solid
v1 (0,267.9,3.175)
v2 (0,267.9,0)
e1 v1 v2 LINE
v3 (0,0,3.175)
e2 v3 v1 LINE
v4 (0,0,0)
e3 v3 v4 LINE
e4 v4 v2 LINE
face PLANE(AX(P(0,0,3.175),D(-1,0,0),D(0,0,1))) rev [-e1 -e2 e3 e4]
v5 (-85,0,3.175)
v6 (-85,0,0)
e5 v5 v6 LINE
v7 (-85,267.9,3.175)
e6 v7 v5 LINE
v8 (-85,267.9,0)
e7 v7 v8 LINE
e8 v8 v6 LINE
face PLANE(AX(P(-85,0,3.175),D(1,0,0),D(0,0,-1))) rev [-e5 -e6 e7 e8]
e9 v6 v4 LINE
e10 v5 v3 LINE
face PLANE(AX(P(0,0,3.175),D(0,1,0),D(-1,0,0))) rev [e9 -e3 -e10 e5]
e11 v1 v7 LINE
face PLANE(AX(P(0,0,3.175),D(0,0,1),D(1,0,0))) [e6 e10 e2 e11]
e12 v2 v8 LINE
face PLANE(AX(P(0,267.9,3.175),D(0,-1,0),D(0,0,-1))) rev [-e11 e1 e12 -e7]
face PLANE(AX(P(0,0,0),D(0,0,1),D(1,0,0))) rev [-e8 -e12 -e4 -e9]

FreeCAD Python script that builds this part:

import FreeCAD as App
import Part
import Sketcher
Q = App.Units.Quantity


def add_polygon(sketch, points):
    """Adds a closed chain of lines whose ends are joined by coincident constraints."""
    first, n = sketch.GeometryCount, len(points)
    for a, b in zip(points, points[1:] + points[:1]):
        sketch.addGeometry(Part.LineSegment(App.Vector(*a, 0), App.Vector(*b, 0)), False)
    for i in range(n):
        sketch.addConstraint(Sketcher.Constraint("Coincident", first + i, 2, first + (i + 1) % n, 1))

doc = App.newDocument("Part")
params = doc.addObject("Spreadsheet::Sheet", "Params")
for row, (alias, value) in enumerate([
    ("sketch1_width", "85 mm"),
    ("sketch1_height", "267.9 mm"),
    ("pad1_length", "3.175 mm"),
], start=1):
    params.set(f"A{row}", alias)
    params.set(f"B{row}", "=" + value)
    params.setAlias(f"B{row}", alias)

body = doc.addObject("PartDesign::Body", "Body")

# Sketch on XY plane
sketch1 = body.newObject("Sketcher::SketchObject", "Sketch")
sketch1.AttachmentSupport = (doc.getObject("XY_Plane"), [""])
sketch1.MapMode = "FlatFace"
add_polygon(sketch1, [(-85, 268), (-85, 0), (0, 0), (0, 268)])  # lines 0-3
sketch1.addConstraint([
    Sketcher.Constraint("Vertical", 0),
    Sketcher.Constraint("Horizontal", 1),
    Sketcher.Constraint("Vertical", 2),
    Sketcher.Constraint("Horizontal", 3),
    Sketcher.Constraint("Coincident", 1, 2, -1, 1),
    Sketcher.Constraint("DistanceX", 1, 1, 1, 2, Q("85 mm")),
    Sketcher.Constraint("DistanceY", 0, 2, 0, 1, Q("267.9 mm")),
])
sketch1.setExpression("Constraints[9]", "Params.sketch1_width")
sketch1.setExpression("Constraints[10]", "Params.sketch1_height")
pad1 = body.newObject("PartDesign::Pad", "Pad")
pad1.Profile = sketch1
pad1.setExpression("Length", "Params.pad1_length")

doc.recompute()
